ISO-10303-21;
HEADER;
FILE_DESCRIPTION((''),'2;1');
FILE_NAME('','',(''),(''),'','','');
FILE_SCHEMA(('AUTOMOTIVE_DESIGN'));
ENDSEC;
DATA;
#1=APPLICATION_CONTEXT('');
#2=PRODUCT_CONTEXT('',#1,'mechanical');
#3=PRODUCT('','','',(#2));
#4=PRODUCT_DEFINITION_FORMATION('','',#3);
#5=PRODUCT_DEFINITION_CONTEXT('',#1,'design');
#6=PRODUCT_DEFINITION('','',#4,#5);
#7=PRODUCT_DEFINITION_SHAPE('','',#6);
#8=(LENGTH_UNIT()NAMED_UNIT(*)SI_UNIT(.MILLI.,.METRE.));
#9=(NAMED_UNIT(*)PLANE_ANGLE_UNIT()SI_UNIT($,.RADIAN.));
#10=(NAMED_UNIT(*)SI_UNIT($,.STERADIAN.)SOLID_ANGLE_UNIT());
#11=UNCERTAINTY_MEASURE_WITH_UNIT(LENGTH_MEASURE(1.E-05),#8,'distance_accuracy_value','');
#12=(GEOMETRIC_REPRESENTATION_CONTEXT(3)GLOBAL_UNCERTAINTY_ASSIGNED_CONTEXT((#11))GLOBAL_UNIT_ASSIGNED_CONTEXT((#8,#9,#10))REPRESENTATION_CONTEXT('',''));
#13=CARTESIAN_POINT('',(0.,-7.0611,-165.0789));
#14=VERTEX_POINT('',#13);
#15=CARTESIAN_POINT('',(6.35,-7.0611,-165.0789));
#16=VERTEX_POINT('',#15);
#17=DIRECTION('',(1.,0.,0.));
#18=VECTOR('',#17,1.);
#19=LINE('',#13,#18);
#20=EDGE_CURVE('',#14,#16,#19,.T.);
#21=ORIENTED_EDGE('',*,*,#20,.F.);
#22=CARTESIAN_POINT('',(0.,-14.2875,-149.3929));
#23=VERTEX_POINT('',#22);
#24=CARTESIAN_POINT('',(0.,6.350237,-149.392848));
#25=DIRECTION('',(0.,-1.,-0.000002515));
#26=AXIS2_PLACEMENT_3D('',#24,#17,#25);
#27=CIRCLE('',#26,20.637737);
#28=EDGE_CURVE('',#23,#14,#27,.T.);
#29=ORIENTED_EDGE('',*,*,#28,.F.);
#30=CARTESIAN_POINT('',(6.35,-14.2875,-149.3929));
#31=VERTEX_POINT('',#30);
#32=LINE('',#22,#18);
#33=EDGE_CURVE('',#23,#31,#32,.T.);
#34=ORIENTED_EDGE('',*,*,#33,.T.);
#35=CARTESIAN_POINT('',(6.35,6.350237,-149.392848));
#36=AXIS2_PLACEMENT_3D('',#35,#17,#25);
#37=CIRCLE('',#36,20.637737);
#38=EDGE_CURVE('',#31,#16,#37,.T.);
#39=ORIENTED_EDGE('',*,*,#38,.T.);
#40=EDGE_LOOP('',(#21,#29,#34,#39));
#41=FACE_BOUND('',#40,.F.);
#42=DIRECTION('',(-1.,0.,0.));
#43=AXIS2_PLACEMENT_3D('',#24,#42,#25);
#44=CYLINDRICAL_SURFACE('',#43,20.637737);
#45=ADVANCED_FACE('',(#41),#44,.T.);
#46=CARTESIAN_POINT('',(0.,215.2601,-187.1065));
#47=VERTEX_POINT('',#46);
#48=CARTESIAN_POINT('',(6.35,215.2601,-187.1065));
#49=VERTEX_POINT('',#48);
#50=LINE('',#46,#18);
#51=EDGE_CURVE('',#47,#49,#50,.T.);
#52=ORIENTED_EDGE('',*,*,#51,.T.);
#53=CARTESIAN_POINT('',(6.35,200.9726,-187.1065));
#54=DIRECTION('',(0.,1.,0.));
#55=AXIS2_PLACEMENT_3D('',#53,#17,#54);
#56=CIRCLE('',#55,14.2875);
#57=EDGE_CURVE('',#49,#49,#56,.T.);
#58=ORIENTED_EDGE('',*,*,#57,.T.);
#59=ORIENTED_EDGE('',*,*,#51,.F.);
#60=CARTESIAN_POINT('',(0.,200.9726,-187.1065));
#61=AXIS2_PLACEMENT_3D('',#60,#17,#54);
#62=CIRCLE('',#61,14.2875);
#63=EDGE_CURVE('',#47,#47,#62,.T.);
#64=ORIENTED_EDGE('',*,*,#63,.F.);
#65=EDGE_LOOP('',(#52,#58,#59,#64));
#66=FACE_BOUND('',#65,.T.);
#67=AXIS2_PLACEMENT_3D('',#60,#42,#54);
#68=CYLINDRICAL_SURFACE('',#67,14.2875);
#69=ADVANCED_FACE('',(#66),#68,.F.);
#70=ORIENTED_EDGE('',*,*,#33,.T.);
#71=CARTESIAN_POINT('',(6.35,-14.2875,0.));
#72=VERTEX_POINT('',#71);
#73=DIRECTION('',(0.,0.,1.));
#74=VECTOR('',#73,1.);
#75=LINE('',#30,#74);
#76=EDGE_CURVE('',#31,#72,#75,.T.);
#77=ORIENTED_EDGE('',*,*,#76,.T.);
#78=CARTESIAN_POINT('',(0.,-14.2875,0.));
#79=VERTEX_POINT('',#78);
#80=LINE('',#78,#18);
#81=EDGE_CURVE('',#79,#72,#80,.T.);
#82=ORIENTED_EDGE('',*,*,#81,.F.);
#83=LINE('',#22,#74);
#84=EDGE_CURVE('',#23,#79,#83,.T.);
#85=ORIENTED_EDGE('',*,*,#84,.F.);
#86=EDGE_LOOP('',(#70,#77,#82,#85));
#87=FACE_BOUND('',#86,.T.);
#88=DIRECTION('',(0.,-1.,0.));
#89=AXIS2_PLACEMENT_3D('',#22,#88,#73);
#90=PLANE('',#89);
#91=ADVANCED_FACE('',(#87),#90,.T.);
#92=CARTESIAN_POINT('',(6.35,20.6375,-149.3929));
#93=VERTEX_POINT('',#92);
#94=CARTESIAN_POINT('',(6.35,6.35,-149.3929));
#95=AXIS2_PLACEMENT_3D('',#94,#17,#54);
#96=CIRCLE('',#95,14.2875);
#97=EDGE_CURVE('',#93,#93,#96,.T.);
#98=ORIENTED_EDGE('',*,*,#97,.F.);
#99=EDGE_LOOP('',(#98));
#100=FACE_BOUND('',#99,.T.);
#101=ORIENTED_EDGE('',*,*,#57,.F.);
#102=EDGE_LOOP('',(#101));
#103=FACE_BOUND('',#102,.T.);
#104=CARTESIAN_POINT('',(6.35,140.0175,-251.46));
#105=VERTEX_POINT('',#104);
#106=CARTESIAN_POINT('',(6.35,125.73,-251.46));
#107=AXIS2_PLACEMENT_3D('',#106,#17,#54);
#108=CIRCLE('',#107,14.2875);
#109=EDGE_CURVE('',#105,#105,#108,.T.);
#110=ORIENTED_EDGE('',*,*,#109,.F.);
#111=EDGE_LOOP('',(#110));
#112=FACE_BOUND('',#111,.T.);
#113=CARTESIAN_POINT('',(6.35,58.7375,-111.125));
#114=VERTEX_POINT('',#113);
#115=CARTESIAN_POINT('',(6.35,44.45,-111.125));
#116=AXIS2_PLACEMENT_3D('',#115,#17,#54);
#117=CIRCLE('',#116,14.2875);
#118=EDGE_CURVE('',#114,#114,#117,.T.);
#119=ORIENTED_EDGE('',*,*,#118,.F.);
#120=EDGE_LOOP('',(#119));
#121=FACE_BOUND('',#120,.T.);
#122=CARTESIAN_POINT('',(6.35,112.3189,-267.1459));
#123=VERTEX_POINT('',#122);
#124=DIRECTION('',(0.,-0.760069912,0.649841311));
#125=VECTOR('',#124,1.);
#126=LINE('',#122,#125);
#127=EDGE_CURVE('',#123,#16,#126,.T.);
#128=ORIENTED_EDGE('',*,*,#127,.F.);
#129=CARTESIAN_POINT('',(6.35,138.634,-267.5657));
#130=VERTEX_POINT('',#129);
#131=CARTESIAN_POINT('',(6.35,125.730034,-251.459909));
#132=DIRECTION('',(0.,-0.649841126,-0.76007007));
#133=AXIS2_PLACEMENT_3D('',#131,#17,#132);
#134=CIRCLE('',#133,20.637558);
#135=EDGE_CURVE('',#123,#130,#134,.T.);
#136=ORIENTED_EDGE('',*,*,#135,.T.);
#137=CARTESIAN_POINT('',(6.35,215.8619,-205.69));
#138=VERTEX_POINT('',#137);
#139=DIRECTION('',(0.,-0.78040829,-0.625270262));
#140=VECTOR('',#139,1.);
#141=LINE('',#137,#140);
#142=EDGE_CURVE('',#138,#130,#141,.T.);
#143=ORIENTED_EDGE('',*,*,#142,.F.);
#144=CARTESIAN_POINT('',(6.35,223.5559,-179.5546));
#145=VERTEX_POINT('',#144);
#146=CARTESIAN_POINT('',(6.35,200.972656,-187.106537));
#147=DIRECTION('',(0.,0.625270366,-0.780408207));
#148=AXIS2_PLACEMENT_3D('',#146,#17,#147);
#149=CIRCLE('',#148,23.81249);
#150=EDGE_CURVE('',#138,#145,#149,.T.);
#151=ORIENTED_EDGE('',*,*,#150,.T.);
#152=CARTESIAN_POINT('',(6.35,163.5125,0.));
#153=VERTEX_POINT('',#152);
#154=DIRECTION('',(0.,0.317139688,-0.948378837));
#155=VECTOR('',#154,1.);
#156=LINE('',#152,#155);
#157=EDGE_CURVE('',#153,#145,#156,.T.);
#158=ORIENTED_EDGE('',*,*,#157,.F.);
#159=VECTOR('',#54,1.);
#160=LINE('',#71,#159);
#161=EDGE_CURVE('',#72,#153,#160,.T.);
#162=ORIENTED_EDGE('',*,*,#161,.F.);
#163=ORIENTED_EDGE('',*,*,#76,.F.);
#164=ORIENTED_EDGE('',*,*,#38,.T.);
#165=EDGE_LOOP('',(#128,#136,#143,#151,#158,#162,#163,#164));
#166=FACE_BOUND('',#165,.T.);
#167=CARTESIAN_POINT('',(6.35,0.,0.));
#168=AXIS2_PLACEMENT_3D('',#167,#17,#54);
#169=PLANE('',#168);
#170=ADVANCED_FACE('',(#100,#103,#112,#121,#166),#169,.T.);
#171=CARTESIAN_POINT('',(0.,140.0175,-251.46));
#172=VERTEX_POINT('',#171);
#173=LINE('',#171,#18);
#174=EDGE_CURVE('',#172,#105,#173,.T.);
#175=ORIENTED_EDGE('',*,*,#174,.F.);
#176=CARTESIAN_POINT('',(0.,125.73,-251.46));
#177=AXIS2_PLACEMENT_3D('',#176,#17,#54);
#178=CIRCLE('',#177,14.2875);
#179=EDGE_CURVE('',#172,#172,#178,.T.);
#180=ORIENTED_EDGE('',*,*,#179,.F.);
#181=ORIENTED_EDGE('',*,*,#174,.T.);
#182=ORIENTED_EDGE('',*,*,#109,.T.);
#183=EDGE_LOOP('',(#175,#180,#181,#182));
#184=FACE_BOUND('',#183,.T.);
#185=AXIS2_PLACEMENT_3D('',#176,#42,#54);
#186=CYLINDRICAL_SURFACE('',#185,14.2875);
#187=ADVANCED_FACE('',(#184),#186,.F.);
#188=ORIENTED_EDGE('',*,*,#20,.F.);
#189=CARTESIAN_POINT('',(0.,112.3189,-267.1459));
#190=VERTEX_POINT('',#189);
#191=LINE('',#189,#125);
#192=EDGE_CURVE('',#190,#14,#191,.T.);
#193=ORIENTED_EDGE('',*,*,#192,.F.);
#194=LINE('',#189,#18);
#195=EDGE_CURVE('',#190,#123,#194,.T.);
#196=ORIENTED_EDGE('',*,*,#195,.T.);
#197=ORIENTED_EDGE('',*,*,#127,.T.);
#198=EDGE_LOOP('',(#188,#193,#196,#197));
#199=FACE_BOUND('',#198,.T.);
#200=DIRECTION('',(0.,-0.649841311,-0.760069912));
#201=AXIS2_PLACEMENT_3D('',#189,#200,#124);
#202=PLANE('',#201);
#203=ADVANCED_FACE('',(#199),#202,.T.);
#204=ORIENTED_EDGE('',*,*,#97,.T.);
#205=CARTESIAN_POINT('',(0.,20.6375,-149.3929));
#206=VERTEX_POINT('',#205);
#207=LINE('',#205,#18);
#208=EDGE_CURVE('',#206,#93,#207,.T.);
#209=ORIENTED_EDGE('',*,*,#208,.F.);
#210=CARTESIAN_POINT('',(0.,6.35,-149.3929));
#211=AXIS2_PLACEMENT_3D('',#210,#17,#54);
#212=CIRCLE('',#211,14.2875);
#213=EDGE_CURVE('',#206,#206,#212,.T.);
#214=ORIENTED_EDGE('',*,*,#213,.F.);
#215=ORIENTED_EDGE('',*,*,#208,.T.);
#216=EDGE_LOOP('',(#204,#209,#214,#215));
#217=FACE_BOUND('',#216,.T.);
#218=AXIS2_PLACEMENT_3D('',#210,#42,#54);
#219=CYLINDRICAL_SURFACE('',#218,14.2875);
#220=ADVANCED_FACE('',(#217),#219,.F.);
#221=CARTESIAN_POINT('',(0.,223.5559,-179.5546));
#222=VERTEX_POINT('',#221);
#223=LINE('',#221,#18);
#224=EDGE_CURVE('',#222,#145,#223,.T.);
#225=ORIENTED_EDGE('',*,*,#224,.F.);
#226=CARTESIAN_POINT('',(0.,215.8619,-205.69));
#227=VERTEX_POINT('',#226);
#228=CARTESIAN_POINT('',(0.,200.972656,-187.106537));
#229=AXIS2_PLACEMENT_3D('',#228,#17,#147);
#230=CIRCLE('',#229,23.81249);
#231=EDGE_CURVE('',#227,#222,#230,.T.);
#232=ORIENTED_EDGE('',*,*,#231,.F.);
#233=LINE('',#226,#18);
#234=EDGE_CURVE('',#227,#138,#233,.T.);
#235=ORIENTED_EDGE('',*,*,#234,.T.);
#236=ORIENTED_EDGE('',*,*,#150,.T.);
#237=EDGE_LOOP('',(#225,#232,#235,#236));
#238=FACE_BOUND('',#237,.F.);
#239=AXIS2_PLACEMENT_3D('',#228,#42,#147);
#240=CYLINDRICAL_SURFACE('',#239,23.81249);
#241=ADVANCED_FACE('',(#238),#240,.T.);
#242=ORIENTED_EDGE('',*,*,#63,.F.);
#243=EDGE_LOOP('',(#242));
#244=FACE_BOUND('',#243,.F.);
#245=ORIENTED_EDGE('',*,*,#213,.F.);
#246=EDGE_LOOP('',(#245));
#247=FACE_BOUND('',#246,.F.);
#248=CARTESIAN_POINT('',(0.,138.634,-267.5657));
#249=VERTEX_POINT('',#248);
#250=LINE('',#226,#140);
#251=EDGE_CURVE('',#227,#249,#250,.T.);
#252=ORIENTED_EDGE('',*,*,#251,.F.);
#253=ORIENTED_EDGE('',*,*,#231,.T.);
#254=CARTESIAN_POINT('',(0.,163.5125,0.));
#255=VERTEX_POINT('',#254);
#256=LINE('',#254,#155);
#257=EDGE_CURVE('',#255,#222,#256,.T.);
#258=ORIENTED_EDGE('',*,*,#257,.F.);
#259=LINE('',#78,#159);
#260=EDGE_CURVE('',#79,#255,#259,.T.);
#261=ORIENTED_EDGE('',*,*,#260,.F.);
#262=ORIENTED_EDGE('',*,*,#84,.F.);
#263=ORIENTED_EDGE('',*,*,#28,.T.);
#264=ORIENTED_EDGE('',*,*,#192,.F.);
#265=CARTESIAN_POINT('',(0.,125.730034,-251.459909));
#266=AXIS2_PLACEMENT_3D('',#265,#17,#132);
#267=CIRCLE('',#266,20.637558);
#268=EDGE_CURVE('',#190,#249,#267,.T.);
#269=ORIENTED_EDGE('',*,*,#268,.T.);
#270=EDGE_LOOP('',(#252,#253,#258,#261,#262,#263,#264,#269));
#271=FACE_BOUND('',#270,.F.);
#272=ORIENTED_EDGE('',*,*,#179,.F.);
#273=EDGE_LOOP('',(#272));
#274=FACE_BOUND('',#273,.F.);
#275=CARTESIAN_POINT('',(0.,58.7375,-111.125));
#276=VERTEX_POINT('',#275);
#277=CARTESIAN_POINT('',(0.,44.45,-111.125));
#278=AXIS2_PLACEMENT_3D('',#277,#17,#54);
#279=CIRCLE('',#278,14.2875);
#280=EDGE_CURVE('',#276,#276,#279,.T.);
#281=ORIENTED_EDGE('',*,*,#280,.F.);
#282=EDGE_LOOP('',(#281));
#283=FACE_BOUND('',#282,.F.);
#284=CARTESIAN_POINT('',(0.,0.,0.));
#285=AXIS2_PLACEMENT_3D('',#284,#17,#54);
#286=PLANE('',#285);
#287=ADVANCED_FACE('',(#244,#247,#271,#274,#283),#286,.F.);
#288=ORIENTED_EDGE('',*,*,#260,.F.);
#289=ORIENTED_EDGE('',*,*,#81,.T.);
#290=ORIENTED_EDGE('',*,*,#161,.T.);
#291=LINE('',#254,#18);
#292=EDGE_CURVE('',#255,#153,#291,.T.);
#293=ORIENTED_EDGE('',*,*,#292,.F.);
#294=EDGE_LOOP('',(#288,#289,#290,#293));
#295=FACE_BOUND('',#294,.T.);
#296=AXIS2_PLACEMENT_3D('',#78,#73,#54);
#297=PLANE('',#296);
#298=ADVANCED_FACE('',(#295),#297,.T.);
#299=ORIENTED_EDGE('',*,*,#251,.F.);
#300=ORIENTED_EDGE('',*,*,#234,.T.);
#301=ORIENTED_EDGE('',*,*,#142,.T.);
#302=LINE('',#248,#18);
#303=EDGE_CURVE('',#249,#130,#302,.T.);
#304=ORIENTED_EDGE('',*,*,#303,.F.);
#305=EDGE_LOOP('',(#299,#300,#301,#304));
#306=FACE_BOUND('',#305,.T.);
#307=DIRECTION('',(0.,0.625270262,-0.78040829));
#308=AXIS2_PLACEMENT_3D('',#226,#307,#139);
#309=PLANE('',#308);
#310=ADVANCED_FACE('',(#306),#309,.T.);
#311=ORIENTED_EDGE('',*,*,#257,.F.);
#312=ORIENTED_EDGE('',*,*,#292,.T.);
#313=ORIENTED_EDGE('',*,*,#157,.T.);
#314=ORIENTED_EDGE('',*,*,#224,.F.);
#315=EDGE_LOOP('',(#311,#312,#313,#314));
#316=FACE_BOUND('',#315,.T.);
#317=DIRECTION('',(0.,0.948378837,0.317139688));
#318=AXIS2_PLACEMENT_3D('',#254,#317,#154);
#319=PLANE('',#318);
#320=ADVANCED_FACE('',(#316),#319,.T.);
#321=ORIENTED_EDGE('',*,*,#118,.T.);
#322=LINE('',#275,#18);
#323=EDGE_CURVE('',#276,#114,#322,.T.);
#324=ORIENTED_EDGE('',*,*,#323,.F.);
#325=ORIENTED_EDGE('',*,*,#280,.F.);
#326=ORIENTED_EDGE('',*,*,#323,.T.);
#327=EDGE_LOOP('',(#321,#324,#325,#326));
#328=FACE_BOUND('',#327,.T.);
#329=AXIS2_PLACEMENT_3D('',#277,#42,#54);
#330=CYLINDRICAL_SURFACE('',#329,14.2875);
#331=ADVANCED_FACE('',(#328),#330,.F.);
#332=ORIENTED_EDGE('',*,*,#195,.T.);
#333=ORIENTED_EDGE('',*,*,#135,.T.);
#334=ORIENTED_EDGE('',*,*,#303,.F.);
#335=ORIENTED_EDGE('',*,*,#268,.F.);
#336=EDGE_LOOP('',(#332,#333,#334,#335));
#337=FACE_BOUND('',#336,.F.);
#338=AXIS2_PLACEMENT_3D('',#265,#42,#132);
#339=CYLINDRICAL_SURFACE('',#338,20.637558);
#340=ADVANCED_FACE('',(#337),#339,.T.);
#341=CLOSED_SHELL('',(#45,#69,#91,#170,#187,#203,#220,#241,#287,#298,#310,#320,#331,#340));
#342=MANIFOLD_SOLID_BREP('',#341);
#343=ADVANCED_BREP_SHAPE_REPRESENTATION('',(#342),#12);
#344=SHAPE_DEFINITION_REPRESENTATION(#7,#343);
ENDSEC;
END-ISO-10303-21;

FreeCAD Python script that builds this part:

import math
import FreeCAD as App
import Part
import Sketcher
from FreeCAD import Vector
Q = App.Units.Quantity

doc = App.newDocument("Part")
body = doc.addObject("PartDesign::Body", "Body")

# Sketch on YZ plane
sketch1 = body.newObject("Sketcher::SketchObject", "Sketch")
sketch1.AttachmentSupport = (doc.getObject("YZ_Plane"), [""])
sketch1.MapMode = "FlatFace"
sketch1.addGeometry([
    Part.LineSegment(Vector(138.634, -267.5657, 0), Vector(215.8619, -205.69, 0)),  # 0
    Part.ArcOfCircle(Part.Circle(Vector(200.9726, -187.1065, 0), Vector(0, 0, 1), 23.8125), math.radians(-51.297917), math.radians(18.490037)),  # 1
    Part.LineSegment(Vector(223.5559, -179.5546, 0), Vector(163.5125, 0, 0)),  # 2
    Part.LineSegment(Vector(163.5125, 0, 0), Vector(-14.2875, 0, 0)),  # 3
    Part.LineSegment(Vector(-14.2875, 0, 0), Vector(-14.2875, -149.3929, 0)),  # 4
    Part.ArcOfCircle(Part.Circle(Vector(6.35, -149.3929, 0), Vector(0, 0, 1), 20.6375), math.radians(180), math.radians(229.470465)),  # 5
    Part.LineSegment(Vector(-7.0611, -165.0789, 0), Vector(112.3189, -267.1459, 0)),  # 6
    Part.ArcOfCircle(Part.Circle(Vector(125.73, -251.46, 0), Vector(0, 0, 1), 20.6375), math.radians(-130.529716), math.radians(-51.298047)),  # 7
    Part.Circle(Vector(6.35, -149.3929, 0), Vector(0, 0, 1), 14.2875),  # 8
    Part.Circle(Vector(125.73, -251.46, 0), Vector(0, 0, 1), 14.2875),  # 9
    Part.Circle(Vector(200.9726, -187.1065, 0), Vector(0, 0, 1), 14.2875),  # 10
    Part.Circle(Vector(44.45, -111.125, 0), Vector(0, 0, 1), 14.2875),  # 11
], False)
sketch1.addConstraint([
    Sketcher.Constraint("Tangent", 0, 2, 1, 1),
    Sketcher.Constraint("Tangent", 1, 2, 2, 1),
    Sketcher.Constraint("Coincident", 2, 2, 3, 1),
    Sketcher.Constraint("Coincident", 3, 2, 4, 1),
    Sketcher.Constraint("Tangent", 4, 2, 5, 1),
    Sketcher.Constraint("Tangent", 5, 2, 6, 1),
    Sketcher.Constraint("Tangent", 6, 2, 7, 1),
    Sketcher.Constraint("Tangent", 7, 2, 0, 1),
    Sketcher.Constraint("Horizontal", 3),
    Sketcher.Constraint("Vertical", 4),
    Sketcher.Constraint("Coincident", 8, 3, 5, 3),
    Sketcher.Constraint("Coincident", 9, 3, 7, 3),
    Sketcher.Constraint("Coincident", 10, 3, 1, 3),
    Sketcher.Constraint("Equal", 5, 7),
    Sketcher.Constraint("Equal", 8, 9),
    Sketcher.Constraint("Equal", 9, 10),
    Sketcher.Constraint("Equal", 10, 11),
    Sketcher.Constraint("PointOnObject", 2, 2, -1),
    Sketcher.Constraint("DistanceX", 3, 2, 3, 1, Q("7 in")),
    Sketcher.Constraint("Diameter", 8, Q("1.125 in")),
    Sketcher.Constraint("DistanceX", -1, 1, 5, 3, Q("0.25 in")),
    Sketcher.Constraint("Radius", 1, Q("0.9375 in")),
    Sketcher.Constraint("Radius", 5, Q("0.8125 in")),
    Sketcher.Constraint("DistanceY", 7, 3, -1, 1, Q("9.9 in")),
    Sketcher.Constraint("DistanceX", 5, 3, 7, 3, Q("4.7 in")),
    Sketcher.Constraint("DistanceX", 5, 3, 11, 3, Q("1.5 in")),
    Sketcher.Constraint("Angle", 2, Q("108.49 deg")),
    Sketcher.Constraint("Angle", 6, Q("-40.5296 deg")),
    Sketcher.Constraint("Distance", 0, Q("3.896 in")),
    Sketcher.Constraint("DistanceY", 11, 3, -1, 1, Q("4.375 in")),
])
pad1 = body.newObject("PartDesign::Pad", "Pad")
pad1.Profile = sketch1
pad1.Length = Q("0.25 in")

doc.recompute()
